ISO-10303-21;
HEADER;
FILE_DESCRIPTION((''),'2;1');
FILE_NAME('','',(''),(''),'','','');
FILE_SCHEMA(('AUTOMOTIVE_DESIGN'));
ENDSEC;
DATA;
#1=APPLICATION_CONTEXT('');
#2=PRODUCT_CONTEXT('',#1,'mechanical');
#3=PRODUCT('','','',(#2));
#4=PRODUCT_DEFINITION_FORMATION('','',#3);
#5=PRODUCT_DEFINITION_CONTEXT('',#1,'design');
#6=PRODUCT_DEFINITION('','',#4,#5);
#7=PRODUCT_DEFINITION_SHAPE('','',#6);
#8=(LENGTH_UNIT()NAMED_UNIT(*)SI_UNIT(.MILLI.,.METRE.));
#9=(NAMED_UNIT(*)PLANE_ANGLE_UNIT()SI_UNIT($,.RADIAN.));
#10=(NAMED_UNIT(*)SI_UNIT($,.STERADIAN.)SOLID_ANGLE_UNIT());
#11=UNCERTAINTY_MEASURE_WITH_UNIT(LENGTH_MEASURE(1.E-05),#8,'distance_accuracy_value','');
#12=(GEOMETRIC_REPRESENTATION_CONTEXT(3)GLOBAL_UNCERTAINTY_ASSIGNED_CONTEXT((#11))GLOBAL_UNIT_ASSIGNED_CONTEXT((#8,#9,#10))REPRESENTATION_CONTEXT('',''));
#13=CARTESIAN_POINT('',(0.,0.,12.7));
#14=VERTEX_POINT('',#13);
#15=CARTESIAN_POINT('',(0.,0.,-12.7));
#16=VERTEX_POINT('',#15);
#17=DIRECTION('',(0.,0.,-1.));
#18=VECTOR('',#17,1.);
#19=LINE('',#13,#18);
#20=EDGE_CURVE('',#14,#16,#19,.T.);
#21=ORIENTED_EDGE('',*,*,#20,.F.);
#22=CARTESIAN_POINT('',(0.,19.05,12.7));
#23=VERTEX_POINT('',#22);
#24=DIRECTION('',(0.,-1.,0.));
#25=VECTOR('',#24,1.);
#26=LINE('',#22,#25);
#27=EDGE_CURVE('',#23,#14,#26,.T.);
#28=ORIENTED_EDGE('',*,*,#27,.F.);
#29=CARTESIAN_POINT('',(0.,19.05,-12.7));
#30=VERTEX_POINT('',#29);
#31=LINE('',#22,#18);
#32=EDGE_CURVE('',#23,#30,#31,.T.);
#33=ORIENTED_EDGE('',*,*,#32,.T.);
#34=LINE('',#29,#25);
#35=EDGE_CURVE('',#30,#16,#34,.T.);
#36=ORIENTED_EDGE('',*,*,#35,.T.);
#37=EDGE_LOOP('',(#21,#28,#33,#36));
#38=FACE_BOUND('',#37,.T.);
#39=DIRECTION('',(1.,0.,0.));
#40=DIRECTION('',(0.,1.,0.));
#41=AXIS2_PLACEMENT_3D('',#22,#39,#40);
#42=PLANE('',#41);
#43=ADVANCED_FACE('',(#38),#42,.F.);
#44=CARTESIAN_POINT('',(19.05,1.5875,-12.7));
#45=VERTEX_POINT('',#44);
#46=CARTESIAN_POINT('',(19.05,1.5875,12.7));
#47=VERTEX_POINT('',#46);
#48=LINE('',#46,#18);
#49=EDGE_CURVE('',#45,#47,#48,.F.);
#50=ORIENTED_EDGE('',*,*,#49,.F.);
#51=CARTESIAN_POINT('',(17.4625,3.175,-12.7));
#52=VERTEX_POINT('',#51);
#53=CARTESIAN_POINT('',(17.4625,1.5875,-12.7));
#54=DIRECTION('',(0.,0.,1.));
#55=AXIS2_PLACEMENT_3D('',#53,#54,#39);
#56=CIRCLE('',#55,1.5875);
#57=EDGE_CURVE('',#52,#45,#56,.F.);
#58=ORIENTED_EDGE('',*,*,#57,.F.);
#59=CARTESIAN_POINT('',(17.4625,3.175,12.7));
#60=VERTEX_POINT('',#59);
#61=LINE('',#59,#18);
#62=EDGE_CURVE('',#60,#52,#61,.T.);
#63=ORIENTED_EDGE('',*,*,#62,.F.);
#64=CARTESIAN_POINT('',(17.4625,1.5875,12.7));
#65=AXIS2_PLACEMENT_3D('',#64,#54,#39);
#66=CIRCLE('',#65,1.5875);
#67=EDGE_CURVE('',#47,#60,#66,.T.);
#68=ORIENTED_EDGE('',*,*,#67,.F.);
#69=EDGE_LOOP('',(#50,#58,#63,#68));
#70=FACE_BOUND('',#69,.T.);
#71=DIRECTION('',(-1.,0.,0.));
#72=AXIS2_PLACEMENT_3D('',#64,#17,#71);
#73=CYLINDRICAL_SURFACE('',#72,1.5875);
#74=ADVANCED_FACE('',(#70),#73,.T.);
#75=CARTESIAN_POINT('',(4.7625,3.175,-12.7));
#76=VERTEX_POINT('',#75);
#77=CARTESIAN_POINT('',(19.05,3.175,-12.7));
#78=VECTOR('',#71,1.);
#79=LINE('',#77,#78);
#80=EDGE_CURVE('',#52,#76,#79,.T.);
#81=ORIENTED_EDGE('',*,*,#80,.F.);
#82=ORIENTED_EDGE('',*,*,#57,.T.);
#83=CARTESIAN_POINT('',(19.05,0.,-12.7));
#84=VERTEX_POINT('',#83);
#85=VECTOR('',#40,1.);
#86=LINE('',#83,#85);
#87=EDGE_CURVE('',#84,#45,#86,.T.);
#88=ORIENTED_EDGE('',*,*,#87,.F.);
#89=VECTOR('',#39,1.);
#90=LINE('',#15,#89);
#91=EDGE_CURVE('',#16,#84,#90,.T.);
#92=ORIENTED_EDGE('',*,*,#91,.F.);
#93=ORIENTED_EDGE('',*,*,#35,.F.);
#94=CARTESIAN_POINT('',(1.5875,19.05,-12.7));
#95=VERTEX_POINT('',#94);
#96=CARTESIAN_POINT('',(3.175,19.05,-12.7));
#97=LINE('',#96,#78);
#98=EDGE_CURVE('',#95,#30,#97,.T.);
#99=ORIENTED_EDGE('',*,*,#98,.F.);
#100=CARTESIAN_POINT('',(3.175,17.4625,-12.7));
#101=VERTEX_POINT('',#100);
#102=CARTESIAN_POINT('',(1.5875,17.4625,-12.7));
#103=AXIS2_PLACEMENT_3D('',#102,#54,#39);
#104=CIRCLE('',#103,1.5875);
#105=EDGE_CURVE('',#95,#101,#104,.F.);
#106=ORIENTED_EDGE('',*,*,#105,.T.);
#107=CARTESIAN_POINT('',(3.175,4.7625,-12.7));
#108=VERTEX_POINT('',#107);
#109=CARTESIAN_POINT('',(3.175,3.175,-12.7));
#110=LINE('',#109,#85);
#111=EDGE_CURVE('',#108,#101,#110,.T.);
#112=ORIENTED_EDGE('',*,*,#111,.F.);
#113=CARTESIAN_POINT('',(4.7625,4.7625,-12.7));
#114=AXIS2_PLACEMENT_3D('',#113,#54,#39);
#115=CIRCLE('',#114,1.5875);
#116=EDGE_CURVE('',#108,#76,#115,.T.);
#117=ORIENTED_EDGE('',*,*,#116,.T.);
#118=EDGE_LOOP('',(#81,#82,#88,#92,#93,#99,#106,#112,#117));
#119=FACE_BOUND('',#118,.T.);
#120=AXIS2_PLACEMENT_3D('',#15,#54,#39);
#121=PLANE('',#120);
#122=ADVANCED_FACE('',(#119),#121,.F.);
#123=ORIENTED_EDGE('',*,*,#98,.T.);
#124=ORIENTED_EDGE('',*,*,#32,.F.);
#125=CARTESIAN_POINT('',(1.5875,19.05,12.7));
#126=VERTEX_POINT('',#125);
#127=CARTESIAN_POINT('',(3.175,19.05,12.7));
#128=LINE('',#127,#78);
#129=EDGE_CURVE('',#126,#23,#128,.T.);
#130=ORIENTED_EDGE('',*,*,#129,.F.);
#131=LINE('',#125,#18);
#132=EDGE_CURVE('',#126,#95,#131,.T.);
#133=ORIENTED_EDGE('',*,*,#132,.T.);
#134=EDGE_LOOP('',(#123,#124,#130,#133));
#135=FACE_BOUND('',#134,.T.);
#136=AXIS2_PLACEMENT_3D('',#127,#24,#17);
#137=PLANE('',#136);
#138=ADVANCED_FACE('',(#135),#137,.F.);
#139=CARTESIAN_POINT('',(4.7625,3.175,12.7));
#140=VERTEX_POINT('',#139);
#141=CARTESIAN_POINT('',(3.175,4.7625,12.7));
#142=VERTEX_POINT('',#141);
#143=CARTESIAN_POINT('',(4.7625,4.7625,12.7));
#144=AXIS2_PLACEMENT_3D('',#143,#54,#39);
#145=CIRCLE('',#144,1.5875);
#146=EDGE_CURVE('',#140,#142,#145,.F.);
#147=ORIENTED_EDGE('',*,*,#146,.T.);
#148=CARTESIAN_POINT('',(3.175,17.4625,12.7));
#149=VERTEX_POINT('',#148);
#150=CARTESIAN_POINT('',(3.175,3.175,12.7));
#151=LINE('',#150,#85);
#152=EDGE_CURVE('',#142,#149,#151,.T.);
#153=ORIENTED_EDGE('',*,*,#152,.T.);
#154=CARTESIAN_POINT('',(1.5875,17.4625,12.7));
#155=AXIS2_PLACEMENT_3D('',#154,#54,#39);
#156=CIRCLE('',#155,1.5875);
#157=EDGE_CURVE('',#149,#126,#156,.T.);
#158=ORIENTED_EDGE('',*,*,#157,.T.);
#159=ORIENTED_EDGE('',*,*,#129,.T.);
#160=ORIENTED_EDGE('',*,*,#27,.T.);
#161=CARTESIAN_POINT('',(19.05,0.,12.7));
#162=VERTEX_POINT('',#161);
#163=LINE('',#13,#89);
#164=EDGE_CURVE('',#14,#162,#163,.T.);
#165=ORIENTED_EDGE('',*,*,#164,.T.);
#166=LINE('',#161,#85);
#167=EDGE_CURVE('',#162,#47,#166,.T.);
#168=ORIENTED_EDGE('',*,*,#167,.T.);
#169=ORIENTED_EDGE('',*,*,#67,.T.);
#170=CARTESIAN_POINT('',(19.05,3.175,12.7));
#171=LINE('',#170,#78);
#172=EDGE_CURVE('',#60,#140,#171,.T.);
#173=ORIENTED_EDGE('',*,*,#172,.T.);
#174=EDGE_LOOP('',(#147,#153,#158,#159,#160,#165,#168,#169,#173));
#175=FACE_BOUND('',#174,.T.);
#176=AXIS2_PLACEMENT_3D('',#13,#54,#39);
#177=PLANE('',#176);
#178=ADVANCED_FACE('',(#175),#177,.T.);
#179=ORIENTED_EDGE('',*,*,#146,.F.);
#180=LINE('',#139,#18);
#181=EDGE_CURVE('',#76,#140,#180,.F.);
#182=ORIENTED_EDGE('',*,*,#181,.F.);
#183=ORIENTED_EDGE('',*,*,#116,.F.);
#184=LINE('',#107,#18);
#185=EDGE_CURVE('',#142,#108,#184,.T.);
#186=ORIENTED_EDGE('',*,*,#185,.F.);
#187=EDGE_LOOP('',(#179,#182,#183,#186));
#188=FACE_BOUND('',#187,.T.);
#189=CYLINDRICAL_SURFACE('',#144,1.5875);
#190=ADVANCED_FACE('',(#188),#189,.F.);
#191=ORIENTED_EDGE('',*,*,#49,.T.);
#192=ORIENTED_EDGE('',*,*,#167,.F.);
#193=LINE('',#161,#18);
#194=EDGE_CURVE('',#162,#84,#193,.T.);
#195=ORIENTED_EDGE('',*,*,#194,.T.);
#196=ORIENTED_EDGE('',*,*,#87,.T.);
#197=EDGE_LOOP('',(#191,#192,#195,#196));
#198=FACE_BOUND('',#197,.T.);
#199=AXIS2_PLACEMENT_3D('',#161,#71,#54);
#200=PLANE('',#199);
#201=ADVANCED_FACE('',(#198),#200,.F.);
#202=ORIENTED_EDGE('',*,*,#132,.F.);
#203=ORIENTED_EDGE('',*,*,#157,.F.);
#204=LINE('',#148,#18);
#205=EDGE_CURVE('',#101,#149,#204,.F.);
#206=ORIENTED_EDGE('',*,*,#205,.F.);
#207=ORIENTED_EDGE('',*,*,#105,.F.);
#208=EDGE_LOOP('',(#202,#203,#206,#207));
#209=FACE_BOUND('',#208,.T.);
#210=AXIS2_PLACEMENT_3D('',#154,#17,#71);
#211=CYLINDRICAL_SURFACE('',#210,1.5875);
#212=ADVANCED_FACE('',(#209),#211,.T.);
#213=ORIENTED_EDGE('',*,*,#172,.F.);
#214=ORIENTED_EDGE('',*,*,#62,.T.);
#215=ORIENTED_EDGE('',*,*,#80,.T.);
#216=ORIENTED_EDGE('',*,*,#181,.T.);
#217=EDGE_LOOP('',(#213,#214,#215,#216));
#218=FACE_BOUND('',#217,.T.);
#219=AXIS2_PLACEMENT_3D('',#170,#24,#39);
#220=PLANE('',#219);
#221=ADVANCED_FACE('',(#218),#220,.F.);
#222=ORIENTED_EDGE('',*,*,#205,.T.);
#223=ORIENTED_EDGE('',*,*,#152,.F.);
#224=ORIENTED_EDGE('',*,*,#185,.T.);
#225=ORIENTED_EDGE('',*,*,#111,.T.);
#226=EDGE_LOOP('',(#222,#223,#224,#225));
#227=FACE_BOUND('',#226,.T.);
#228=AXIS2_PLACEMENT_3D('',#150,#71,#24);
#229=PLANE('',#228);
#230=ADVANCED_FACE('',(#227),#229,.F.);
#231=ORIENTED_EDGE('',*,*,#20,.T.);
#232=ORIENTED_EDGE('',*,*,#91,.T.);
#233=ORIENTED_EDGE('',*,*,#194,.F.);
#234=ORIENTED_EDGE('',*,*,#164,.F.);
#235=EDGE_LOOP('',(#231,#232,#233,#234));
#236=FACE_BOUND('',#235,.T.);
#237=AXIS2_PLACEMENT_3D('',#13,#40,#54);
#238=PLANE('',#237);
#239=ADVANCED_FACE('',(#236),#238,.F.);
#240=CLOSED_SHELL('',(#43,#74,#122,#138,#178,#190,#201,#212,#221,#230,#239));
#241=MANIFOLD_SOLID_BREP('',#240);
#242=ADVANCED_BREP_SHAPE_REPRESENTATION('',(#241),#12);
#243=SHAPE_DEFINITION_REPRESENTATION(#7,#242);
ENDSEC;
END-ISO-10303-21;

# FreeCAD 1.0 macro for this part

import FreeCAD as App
import Part
import Sketcher
from FreeCAD import Vector
Q = App.Units.Quantity


def edges_at(feature, points):
    """Names of the edges that pass closest to the given points."""
    edges = feature.Shape.Edges
    near = lambda p: min(range(len(edges)), key=lambda i: edges[i].distToShape(Part.Vertex(*p))[0])
    return sorted({f"Edge{near(p) + 1}" for p in points})


def add_polygon(sketch, points):
    """Adds a closed chain of lines whose ends are joined by coincident constraints."""
    first, n = sketch.GeometryCount, len(points)
    for a, b in zip(points, points[1:] + points[:1]):
        sketch.addGeometry(Part.LineSegment(App.Vector(*a, 0), App.Vector(*b, 0)), False)
    for i in range(n):
        sketch.addConstraint(Sketcher.Constraint("Coincident", first + i, 2, first + (i + 1) % n, 1))

doc = App.newDocument("Part")
body = doc.addObject("PartDesign::Body", "Body")

# Sketch on XY plane
sketch1 = body.newObject("Sketcher::SketchObject", "Sketch")
sketch1.AttachmentSupport = (doc.getObject("XY_Plane"), [""])
sketch1.MapMode = "FlatFace"
add_polygon(sketch1, [(3.175, 19.05), (0, 19.05), (0, 0), (19.05, 0), (19.05, 3.175), (3.175, 3.175)])  # lines 0-5
sketch1.addConstraint(Sketcher.Constraint("Horizontal", 0))
sketch1.addConstraint(Sketcher.Constraint("Vertical", 1))
sketch1.addConstraint(Sketcher.Constraint("Horizontal", 2))
sketch1.addConstraint(Sketcher.Constraint("Vertical", 3))
sketch1.addConstraint(Sketcher.Constraint("Horizontal", 4))
sketch1.addConstraint(Sketcher.Constraint("Vertical", 5))
sketch1.addConstraint(Sketcher.Constraint("Coincident", 1, 2, -1, 1))
sketch1.addConstraint(Sketcher.Constraint("Equal", 2, 1))
sketch1.addConstraint(Sketcher.Constraint("Equal", 0, 3))
sketch1.addConstraint(Sketcher.Constraint("DistanceX", 2, 1, 2, 2, Q("0.75 in")))
sketch1.addConstraint(Sketcher.Constraint("DistanceX", 0, 2, 0, 1, Q("0.125 in")))
pad1 = body.newObject("PartDesign::Pad", "Pad")
pad1.Profile = sketch1
pad1.Length = Q("1 in")
pad1.Midplane = True
doc.recompute()

fillet = body.newObject("PartDesign::Fillet", "Fillet")
fillet.Base = (pad1, edges_at(pad1, [(3.175, 3.175, 0), (19.05, 3.175, 0), (3.175, 19.05, 0)]))
fillet.Radius = Q("0.0625 in")

doc.recompute()
